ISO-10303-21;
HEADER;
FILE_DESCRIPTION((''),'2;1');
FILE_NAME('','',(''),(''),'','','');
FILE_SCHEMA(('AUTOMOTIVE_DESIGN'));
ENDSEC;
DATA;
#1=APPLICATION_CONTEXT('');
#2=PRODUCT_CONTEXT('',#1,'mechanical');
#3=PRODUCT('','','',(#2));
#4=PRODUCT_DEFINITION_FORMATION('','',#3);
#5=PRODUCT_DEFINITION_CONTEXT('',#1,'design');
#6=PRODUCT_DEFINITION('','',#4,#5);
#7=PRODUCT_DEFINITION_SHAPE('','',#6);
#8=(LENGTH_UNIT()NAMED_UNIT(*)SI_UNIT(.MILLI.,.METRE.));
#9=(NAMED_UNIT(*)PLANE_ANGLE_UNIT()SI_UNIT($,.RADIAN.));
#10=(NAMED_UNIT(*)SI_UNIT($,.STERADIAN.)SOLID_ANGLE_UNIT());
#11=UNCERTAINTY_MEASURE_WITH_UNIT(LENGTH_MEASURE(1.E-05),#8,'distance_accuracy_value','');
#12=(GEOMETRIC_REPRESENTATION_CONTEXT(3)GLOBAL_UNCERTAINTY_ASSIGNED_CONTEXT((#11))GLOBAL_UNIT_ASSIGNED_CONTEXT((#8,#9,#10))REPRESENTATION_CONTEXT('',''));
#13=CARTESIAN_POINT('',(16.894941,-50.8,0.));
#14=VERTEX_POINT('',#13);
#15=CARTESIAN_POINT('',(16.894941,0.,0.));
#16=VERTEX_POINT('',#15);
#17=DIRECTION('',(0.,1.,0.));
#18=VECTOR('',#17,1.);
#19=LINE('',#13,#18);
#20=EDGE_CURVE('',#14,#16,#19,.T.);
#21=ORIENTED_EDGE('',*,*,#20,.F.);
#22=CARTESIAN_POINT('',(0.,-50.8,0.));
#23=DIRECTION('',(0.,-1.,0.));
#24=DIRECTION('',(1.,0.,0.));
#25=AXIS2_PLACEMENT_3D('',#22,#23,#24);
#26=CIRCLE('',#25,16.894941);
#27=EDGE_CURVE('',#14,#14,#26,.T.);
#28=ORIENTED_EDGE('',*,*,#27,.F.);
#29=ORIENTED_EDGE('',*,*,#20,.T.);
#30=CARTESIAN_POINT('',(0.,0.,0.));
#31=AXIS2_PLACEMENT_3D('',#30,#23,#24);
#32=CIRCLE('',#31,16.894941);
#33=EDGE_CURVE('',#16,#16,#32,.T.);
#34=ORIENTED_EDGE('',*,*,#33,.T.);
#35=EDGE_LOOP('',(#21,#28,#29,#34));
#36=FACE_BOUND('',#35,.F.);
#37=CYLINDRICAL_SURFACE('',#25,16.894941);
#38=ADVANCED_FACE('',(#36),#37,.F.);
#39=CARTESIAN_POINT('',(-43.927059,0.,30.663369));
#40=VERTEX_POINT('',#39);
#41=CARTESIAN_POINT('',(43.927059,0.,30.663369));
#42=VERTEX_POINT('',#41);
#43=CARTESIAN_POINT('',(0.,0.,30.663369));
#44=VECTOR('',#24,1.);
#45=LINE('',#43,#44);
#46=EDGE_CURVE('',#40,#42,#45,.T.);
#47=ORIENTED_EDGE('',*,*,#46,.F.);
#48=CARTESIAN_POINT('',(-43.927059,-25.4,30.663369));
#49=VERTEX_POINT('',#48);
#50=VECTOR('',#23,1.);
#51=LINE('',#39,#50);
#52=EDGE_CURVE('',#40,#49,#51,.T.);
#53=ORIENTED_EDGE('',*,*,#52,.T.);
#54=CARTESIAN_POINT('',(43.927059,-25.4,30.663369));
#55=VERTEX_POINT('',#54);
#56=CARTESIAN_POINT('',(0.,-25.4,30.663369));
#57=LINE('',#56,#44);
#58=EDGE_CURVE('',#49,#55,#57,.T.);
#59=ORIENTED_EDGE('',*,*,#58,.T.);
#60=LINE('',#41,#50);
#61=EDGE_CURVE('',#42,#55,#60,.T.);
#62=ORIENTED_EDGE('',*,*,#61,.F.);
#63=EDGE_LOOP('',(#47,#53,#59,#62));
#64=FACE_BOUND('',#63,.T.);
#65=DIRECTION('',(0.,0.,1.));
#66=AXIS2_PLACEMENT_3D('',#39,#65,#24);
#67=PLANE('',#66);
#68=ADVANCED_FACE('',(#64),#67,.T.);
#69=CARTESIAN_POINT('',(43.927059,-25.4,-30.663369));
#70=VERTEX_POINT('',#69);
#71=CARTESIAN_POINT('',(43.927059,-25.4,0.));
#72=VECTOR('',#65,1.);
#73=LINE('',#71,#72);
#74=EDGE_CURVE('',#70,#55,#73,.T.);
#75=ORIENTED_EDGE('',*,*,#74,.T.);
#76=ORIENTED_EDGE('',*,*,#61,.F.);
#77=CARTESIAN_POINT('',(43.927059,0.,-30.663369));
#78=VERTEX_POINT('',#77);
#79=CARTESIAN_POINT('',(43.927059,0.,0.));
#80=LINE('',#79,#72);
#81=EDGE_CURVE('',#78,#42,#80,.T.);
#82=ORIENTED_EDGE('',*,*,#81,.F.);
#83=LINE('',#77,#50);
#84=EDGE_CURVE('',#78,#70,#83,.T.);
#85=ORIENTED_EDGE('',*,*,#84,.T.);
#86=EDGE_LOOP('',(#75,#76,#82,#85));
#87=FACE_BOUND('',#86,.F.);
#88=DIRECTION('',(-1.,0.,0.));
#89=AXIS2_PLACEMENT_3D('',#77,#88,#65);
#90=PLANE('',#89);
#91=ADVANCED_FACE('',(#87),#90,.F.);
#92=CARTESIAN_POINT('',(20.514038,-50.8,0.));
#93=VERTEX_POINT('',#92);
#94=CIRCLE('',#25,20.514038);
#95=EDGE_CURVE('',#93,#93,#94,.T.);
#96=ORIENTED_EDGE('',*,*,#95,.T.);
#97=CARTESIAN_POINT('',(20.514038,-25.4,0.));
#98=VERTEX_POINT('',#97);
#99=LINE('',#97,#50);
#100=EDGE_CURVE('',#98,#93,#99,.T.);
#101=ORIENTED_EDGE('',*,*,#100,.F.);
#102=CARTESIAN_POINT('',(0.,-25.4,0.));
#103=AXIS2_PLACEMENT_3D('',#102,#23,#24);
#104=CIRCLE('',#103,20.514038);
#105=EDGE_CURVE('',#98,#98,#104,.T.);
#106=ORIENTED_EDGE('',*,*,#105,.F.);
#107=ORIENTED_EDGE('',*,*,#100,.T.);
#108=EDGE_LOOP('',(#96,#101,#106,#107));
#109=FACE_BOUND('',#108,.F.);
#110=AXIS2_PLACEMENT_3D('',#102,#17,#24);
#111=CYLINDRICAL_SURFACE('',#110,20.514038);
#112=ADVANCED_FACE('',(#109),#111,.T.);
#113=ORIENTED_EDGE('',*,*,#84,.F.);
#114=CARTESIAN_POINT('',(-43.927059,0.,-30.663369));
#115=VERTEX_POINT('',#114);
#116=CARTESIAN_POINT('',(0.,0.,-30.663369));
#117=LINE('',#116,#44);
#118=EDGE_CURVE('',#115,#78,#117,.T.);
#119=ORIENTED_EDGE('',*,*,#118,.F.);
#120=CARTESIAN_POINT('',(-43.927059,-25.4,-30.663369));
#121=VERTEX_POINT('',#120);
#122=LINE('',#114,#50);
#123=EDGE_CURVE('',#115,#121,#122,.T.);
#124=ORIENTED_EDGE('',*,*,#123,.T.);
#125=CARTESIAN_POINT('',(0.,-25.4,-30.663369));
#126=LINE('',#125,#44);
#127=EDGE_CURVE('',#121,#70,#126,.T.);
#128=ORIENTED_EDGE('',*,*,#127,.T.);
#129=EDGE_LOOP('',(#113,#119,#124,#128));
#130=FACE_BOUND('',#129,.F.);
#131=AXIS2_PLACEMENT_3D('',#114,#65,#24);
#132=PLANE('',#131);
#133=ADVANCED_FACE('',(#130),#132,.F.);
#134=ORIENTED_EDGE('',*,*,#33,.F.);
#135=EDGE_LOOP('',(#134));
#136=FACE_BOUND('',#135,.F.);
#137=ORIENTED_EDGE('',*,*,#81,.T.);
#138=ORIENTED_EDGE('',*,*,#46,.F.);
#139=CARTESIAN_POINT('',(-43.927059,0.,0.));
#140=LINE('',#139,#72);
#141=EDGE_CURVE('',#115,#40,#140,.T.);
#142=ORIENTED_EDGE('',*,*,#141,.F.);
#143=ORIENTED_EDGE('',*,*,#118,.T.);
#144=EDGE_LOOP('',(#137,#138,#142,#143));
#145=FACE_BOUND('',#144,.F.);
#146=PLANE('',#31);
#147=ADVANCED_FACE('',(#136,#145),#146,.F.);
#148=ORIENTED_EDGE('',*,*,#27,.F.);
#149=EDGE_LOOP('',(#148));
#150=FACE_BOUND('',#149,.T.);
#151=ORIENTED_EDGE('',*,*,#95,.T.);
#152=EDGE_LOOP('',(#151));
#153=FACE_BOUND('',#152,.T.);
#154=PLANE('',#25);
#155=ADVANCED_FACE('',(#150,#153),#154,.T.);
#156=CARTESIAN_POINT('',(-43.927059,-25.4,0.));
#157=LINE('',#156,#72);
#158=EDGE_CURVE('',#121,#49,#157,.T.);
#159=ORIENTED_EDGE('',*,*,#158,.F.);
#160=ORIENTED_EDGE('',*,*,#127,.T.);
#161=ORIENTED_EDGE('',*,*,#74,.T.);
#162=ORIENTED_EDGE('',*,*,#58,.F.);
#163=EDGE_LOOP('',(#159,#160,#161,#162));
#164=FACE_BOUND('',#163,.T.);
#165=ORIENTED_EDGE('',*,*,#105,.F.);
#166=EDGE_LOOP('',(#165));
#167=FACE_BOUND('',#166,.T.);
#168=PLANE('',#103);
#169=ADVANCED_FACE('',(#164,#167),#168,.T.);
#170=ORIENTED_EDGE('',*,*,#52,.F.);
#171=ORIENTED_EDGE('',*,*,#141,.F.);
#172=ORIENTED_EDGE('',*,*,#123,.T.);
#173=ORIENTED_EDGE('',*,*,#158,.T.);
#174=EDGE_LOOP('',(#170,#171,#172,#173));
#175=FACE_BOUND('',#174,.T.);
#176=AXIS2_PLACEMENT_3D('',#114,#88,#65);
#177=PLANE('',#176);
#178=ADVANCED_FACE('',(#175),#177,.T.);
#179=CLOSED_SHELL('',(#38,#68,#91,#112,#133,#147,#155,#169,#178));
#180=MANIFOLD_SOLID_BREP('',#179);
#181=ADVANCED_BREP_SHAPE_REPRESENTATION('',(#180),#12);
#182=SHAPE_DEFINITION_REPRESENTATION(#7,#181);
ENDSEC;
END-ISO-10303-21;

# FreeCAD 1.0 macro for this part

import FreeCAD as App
import Part
import Sketcher


def add_polygon(sketch, points):
    """Adds a closed chain of lines whose ends are joined by coincident constraints."""
    first, n = sketch.GeometryCount, len(points)
    for a, b in zip(points, points[1:] + points[:1]):
        sketch.addGeometry(Part.LineSegment(App.Vector(*a, 0), App.Vector(*b, 0)), False)
    for i in range(n):
        sketch.addConstraint(Sketcher.Constraint("Coincident", first + i, 2, first + (i + 1) % n, 1))

doc = App.newDocument("Part")
params = doc.addObject("Spreadsheet::Sheet", "Params")
for row, (alias, value) in enumerate([
    ("pad1_length", "1 in"),
    ("pad2_length", "1 in"),
    ("pocket1_length", "2 in"),
    ("pocket2_length", "3 in"),
], start=1):
    params.set(f"A{row}", alias)
    params.set(f"B{row}", "=" + value)
    params.setAlias(f"B{row}", alias)

body = doc.addObject("PartDesign::Body", "Body")

# Sketch on XZ plane
sketch1 = doc.addObject("Sketcher::SketchObject", "Sketch")
body.addObject(sketch1)
sketch1.AttachmentSupport = (doc.XZ_Plane, [""])
sketch1.MapMode = "FlatFace"
add_polygon(sketch1, [(-43.927059, 30.663369), (-43.927059, -30.663369), (43.927059, -30.663369), (43.927059, 30.663369)])  # lines 0-3
sketch1.addConstraint([
    Sketcher.Constraint("Vertical", 0),
    Sketcher.Constraint("Horizontal", 1),
    Sketcher.Constraint("Vertical", 2),
    Sketcher.Constraint("Horizontal", 3),
    Sketcher.Constraint("Symmetric", 0, 2, 2, 2, -1, 1),
    Sketcher.Constraint("DistanceX", 1, 1, 1, 2, 87.854118),
    Sketcher.Constraint("DistanceY", 0, 2, 0, 1, 61.326738),
])
pad1 = doc.addObject("PartDesign::Pad", "Pad")
body.addObject(pad1)
pad1.Profile = sketch1
pad1.setExpression("Length", "Params.pad1_length")

# Sketch on XZ plane
sketch2 = doc.addObject("Sketcher::SketchObject", "Sketch001")
body.addObject(sketch2)
sketch2.AttachmentSupport = (doc.XZ_Plane, [""])
sketch2.MapMode = "FlatFace"
sketch2.AttachmentOffset = App.Placement(App.Vector(0, 0, 1 * 25.4), App.Rotation())
sketch2.addGeometry(Part.Circle(App.Vector(0, 0, 0), App.Vector(0, 0, 1), 20.514038), False)
sketch2.addConstraint([
    Sketcher.Constraint("Coincident", 0, 3, -1, 1),
    Sketcher.Constraint("Diameter", 0, 41.028076),
])
pad2 = doc.addObject("PartDesign::Pad", "Pad001")
body.addObject(pad2)
pad2.Profile = sketch2
pad2.setExpression("Length", "Params.pad2_length")

# Sketch on XZ plane
sketch3 = doc.addObject("Sketcher::SketchObject", "Sketch002")
body.addObject(sketch3)
sketch3.AttachmentSupport = (doc.XZ_Plane, [""])
sketch3.MapMode = "FlatFace"
sketch3.addGeometry(Part.Circle(App.Vector(0, 0, 0), App.Vector(0, 0, 1), 15.848833), False)
sketch3.addConstraint([
    Sketcher.Constraint("Coincident", 0, 3, -1, 1),
    Sketcher.Constraint("Diameter", 0, 31.697666),
])
pocket1 = doc.addObject("PartDesign::Pocket", "Pocket")
body.addObject(pocket1)
pocket1.Profile = sketch3
pocket1.setExpression("Length", "Params.pocket1_length")

# Sketch on XZ plane
sketch4 = doc.addObject("Sketcher::SketchObject", "Sketch003")
body.addObject(sketch4)
sketch4.AttachmentSupport = (doc.XZ_Plane, [""])
sketch4.MapMode = "FlatFace"
sketch4.AttachmentOffset = App.Placement(App.Vector(0, 0, 2 * 25.4), App.Rotation())
sketch4.addGeometry(Part.Circle(App.Vector(0, 0, 0), App.Vector(0, 0, 1), 16.894941), False)
sketch4.addConstraint([
    Sketcher.Constraint("Coincident", 0, 3, -1, 1),
    Sketcher.Constraint("Diameter", 0, 33.789882),
])
pocket2 = doc.addObject("PartDesign::Pocket", "Pocket001")
body.addObject(pocket2)
pocket2.Profile = sketch4
pocket2.setExpression("Length", "Params.pocket2_length")

doc.recompute()
